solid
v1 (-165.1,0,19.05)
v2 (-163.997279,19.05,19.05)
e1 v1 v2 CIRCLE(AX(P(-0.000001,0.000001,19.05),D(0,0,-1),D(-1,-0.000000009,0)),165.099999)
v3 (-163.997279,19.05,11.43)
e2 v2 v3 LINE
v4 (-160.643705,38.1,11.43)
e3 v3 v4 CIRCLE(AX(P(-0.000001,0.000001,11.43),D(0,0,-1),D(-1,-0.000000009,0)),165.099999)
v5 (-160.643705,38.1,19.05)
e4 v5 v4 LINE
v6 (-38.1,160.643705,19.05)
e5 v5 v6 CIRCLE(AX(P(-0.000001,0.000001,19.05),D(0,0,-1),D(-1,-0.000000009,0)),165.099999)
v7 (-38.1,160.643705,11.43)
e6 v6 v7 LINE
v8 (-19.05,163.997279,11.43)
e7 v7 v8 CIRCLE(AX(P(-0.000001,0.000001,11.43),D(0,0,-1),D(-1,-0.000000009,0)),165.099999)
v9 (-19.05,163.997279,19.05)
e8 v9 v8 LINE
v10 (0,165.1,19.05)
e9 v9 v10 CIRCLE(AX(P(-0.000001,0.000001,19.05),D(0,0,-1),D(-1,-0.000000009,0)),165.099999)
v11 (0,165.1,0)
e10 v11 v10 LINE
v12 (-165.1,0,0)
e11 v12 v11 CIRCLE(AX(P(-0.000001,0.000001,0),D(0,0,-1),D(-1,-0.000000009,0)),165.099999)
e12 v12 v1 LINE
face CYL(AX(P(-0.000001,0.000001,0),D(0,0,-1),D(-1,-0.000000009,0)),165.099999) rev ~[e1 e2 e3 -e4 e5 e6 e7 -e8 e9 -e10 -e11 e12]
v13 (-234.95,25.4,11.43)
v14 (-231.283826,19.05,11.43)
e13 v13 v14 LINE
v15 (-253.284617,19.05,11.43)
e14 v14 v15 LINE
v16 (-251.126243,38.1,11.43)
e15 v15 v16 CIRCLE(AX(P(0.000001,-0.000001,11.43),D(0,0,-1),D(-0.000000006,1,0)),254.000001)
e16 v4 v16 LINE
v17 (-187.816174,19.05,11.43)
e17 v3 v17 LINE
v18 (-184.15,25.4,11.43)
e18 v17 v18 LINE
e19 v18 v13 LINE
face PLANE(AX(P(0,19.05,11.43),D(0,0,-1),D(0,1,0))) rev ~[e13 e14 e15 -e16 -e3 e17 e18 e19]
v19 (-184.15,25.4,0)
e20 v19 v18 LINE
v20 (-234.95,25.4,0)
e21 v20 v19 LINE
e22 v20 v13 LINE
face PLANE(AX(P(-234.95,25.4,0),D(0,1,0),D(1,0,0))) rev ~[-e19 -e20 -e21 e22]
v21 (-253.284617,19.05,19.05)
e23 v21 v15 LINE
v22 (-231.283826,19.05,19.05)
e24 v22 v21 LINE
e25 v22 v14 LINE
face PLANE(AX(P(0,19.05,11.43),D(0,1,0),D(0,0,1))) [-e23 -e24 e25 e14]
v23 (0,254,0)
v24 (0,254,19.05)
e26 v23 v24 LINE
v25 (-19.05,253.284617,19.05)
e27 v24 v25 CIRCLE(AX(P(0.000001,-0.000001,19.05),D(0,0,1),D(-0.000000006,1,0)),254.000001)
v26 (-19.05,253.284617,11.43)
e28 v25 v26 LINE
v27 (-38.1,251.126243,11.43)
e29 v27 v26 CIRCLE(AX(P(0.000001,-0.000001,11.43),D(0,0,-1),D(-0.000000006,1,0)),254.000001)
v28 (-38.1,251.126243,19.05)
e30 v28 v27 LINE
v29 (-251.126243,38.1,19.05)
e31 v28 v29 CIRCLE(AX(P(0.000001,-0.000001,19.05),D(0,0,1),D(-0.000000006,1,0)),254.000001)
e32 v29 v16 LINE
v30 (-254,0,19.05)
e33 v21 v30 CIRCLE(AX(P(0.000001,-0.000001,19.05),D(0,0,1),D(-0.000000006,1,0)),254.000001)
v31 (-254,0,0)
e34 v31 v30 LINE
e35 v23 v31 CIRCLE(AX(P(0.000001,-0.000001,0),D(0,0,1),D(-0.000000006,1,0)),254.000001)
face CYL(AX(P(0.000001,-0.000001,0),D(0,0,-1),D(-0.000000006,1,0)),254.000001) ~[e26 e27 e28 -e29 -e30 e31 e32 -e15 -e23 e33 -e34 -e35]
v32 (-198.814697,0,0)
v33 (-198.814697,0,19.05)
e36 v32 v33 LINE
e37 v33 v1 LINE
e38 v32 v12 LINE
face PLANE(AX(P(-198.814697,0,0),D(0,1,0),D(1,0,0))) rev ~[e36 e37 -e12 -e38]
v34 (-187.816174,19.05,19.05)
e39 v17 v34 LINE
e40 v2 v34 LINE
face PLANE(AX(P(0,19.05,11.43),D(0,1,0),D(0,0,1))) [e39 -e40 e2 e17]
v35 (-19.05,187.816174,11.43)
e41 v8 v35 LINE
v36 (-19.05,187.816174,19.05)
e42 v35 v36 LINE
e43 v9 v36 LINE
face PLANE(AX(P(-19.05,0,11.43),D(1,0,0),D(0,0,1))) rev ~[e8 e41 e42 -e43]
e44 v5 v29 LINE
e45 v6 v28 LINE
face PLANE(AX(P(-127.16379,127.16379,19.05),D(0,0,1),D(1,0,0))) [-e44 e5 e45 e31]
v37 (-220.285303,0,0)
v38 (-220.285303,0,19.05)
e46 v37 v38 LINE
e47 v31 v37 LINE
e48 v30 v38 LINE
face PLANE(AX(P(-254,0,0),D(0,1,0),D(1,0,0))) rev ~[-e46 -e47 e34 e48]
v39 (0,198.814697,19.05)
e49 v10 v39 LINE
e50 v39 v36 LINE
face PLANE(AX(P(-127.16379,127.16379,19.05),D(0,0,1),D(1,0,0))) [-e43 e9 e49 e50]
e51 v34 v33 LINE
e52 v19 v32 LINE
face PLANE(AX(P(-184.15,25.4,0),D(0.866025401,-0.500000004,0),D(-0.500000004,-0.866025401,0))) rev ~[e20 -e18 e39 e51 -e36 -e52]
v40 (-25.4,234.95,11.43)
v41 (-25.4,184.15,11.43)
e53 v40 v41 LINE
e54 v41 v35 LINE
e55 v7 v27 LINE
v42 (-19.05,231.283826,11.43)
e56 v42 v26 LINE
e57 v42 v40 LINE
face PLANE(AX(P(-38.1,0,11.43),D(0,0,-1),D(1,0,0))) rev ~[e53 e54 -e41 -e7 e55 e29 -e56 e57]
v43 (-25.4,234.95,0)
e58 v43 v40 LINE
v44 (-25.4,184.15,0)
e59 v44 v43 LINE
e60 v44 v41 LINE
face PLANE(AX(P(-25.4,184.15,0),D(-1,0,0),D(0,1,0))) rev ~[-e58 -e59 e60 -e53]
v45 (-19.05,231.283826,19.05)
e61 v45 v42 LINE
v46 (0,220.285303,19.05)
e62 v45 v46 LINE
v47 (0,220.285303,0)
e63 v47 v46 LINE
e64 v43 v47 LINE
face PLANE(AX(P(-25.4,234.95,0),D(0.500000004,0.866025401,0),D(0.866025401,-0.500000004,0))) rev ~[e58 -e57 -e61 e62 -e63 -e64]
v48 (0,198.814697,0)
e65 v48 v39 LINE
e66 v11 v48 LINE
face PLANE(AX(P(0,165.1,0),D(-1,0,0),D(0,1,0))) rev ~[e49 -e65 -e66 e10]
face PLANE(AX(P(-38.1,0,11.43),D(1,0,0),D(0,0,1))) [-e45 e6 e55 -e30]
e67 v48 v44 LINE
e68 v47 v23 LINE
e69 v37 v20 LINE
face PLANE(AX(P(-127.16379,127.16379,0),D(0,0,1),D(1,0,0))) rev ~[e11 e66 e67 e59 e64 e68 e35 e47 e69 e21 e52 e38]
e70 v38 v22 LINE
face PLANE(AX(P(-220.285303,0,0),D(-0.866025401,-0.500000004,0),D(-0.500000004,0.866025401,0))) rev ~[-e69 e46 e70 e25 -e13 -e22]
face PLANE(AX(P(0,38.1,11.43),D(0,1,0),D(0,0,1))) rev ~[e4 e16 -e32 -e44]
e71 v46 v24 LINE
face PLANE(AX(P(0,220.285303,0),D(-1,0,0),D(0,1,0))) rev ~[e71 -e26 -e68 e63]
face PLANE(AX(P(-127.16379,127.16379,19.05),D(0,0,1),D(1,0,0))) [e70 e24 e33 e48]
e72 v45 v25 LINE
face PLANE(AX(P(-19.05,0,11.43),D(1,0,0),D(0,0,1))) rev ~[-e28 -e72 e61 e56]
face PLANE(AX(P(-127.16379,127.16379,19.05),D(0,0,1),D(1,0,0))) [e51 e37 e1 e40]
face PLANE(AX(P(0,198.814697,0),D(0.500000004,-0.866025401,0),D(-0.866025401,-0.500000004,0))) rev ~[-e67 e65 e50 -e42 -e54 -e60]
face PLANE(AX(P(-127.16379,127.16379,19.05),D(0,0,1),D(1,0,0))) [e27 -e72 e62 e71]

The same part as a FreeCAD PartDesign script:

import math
import FreeCAD as App
import Part
import Sketcher
Q = App.Units.Quantity


def add_polygon(sketch, points):
    """Adds a closed chain of lines whose ends are joined by coincident constraints."""
    first, n = sketch.GeometryCount, len(points)
    for a, b in zip(points, points[1:] + points[:1]):
        sketch.addGeometry(Part.LineSegment(App.Vector(*a, 0), App.Vector(*b, 0)), False)
    for i in range(n):
        sketch.addConstraint(Sketcher.Constraint("Coincident", first + i, 2, first + (i + 1) % n, 1))

doc = App.newDocument("Part")
body = doc.addObject("PartDesign::Body", "Body")

sketch1 = body.newObject("Sketcher::SketchObject", "Sketch")
sketch1.AttachmentSupport = (doc.getObject("XY_Plane"), [""])
sketch1.MapMode = "FlatFace"
sketch1.addGeometry(Part.ArcOfCircle(Part.Circle(App.Vector(0, 0, 0), App.Vector(0, 0, 1), 254), math.radians(90), math.radians(180)), False)
sketch1.addGeometry(Part.LineSegment(App.Vector(-254, 0, 0), App.Vector(-220, 0, 0)), False)
sketch1.addGeometry(Part.LineSegment(App.Vector(-220, 0, 0), App.Vector(-235, 25, 0)), False)
sketch1.addGeometry(Part.LineSegment(App.Vector(-235, 25, 0), App.Vector(-184, 25, 0)), False)
sketch1.addGeometry(Part.LineSegment(App.Vector(-184, 25, 0), App.Vector(-199, 0, 0)), False)
sketch1.addGeometry(Part.LineSegment(App.Vector(-199, 0, 0), App.Vector(-165, 0, 0)), False)
sketch1.addGeometry(Part.ArcOfCircle(Part.Circle(App.Vector(0, 0, 0), App.Vector(0, 0, 1), 165), math.radians(90), math.radians(180)), False)
sketch1.addGeometry(Part.LineSegment(App.Vector(0, 165, 0), App.Vector(0, 199, 0)), False)
sketch1.addGeometry(Part.LineSegment(App.Vector(0, 199, 0), App.Vector(-25, 184, 0)), False)
sketch1.addGeometry(Part.LineSegment(App.Vector(-25, 184, 0), App.Vector(-25, 235, 0)), False)
sketch1.addGeometry(Part.LineSegment(App.Vector(-25, 235, 0), App.Vector(0, 220, 0)), False)
sketch1.addGeometry(Part.LineSegment(App.Vector(0, 220, 0), App.Vector(0, 254, 0)), False)
sketch1.addConstraint(Sketcher.Constraint("Coincident", 0, 2, 1, 1))
sketch1.addConstraint(Sketcher.Constraint("Coincident", 1, 2, 2, 1))
sketch1.addConstraint(Sketcher.Constraint("Coincident", 2, 2, 3, 1))
sketch1.addConstraint(Sketcher.Constraint("Coincident", 3, 2, 4, 1))
sketch1.addConstraint(Sketcher.Constraint("Coincident", 4, 2, 5, 1))
sketch1.addConstraint(Sketcher.Constraint("Coincident", 5, 2, 6, 2))
sketch1.addConstraint(Sketcher.Constraint("Coincident", 6, 1, 7, 1))
sketch1.addConstraint(Sketcher.Constraint("Coincident", 7, 2, 8, 1))
sketch1.addConstraint(Sketcher.Constraint("Coincident", 8, 2, 9, 1))
sketch1.addConstraint(Sketcher.Constraint("Coincident", 9, 2, 10, 1))
sketch1.addConstraint(Sketcher.Constraint("Coincident", 10, 2, 11, 1))
sketch1.addConstraint(Sketcher.Constraint("Coincident", 11, 2, 0, 1))
sketch1.addConstraint(Sketcher.Constraint("Horizontal", 1))
sketch1.addConstraint(Sketcher.Constraint("Horizontal", 3))
sketch1.addConstraint(Sketcher.Constraint("Horizontal", 5))
sketch1.addConstraint(Sketcher.Constraint("Vertical", 7))
sketch1.addConstraint(Sketcher.Constraint("Vertical", 9))
sketch1.addConstraint(Sketcher.Constraint("Vertical", 11))
sketch1.addConstraint(Sketcher.Constraint("Coincident", 0, 3, -1, 1))
sketch1.addConstraint(Sketcher.Constraint("Coincident", 6, 3, -1, 1))
sketch1.addConstraint(Sketcher.Constraint("PointOnObject", 0, 2, -1))
sketch1.addConstraint(Sketcher.Constraint("PointOnObject", 4, 2, -1))
sketch1.addConstraint(Sketcher.Constraint("PointOnObject", 6, 1, -2))
sketch1.addConstraint(Sketcher.Constraint("PointOnObject", 10, 2, -2))
sketch1.addConstraint(Sketcher.Constraint("Perpendicular", 2, 8))
sketch1.addConstraint(Sketcher.Constraint("Perpendicular", 4, 10))
sketch1.addConstraint(Sketcher.Constraint("Equal", 1, 5))
sketch1.addConstraint(Sketcher.Constraint("Equal", 5, 7))
sketch1.addConstraint(Sketcher.Constraint("Equal", 3, 9))
sketch1.addConstraint(Sketcher.Constraint("Equal", 7, 11))
sketch1.addConstraint(Sketcher.Constraint("Equal", 2, 4))
sketch1.addConstraint(Sketcher.Constraint("Radius", 0, Q("10.0000001 in")))
sketch1.addConstraint(Sketcher.Constraint("Radius", 6, Q("6.4999999 in")))
sketch1.addConstraint(Sketcher.Constraint("DistanceX", 3, 1, 3, 2, Q("2 in")))
sketch1.addConstraint(Sketcher.Constraint("DistanceY", -1, 1, 2, 2, Q("1 in")))
sketch1.addConstraint(Sketcher.Constraint("Angle", 2, Q("120 deg")))
pad1 = body.newObject("PartDesign::Pad", "Pad")
pad1.Profile = sketch1
pad1.Length = Q("0.75 in")

sketch2 = body.newObject("Sketcher::SketchObject", "Sketch001")
sketch2.AttachmentSupport = (doc.getObject("YZ_Plane"), [""])
sketch2.MapMode = "FlatFace"
add_polygon(sketch2, [(19, 19), (19, 11), (38, 11), (38, 19)])
sketch2.addConstraint(Sketcher.Constraint("Vertical", 0))
sketch2.addConstraint(Sketcher.Constraint("Horizontal", 1))
sketch2.addConstraint(Sketcher.Constraint("Vertical", 2))
sketch2.addConstraint(Sketcher.Constraint("Horizontal", 3))
sketch2.addConstraint(Sketcher.Constraint("DistanceY", 0, 2, 0, 1, Q("0.3 in")))
sketch2.addConstraint(Sketcher.Constraint("DistanceX", 1, 1, 1, 2, Q("0.75 in")))
sketch2.addConstraint(Sketcher.Constraint("DistanceX", -1, 1, 1, 2, Q("1.5 in")))
sketch2.addConstraint(Sketcher.Constraint("DistanceY", -1, 1, 0, 2, Q("0.45 in")))
pocket1 = body.newObject("PartDesign::Pocket", "Pocket")
pocket1.Profile = sketch2
pocket1.Type = "ThroughAll"

sketch3 = body.newObject("Sketcher::SketchObject", "Sketch002")
sketch3.AttachmentSupport = (doc.getObject("XZ_Plane"), [""])
sketch3.MapMode = "FlatFace"
add_polygon(sketch3, [(-38, 19), (-38, 11), (-19, 11), (-19, 19)])
sketch3.addConstraint(Sketcher.Constraint("Vertical", 0))
sketch3.addConstraint(Sketcher.Constraint("Horizontal", 1))
sketch3.addConstraint(Sketcher.Constraint("Vertical", 2))
sketch3.addConstraint(Sketcher.Constraint("Horizontal", 3))
sketch3.addConstraint(Sketcher.Constraint("DistanceY", 0, 2, 0, 1, Q("0.3 in")))
sketch3.addConstraint(Sketcher.Constraint("DistanceX", 1, 1, 1, 2, Q("0.75 in")))
sketch3.addConstraint(Sketcher.Constraint("DistanceX", 0, 2, -1, 1, Q("1.5 in")))
sketch3.addConstraint(Sketcher.Constraint("DistanceY", -1, 1, 0, 2, Q("0.45 in")))
pocket2 = body.newObject("PartDesign::Pocket", "Pocket001")
pocket2.Profile = sketch3
pocket2.Type = "ThroughAll"

doc.recompute()
